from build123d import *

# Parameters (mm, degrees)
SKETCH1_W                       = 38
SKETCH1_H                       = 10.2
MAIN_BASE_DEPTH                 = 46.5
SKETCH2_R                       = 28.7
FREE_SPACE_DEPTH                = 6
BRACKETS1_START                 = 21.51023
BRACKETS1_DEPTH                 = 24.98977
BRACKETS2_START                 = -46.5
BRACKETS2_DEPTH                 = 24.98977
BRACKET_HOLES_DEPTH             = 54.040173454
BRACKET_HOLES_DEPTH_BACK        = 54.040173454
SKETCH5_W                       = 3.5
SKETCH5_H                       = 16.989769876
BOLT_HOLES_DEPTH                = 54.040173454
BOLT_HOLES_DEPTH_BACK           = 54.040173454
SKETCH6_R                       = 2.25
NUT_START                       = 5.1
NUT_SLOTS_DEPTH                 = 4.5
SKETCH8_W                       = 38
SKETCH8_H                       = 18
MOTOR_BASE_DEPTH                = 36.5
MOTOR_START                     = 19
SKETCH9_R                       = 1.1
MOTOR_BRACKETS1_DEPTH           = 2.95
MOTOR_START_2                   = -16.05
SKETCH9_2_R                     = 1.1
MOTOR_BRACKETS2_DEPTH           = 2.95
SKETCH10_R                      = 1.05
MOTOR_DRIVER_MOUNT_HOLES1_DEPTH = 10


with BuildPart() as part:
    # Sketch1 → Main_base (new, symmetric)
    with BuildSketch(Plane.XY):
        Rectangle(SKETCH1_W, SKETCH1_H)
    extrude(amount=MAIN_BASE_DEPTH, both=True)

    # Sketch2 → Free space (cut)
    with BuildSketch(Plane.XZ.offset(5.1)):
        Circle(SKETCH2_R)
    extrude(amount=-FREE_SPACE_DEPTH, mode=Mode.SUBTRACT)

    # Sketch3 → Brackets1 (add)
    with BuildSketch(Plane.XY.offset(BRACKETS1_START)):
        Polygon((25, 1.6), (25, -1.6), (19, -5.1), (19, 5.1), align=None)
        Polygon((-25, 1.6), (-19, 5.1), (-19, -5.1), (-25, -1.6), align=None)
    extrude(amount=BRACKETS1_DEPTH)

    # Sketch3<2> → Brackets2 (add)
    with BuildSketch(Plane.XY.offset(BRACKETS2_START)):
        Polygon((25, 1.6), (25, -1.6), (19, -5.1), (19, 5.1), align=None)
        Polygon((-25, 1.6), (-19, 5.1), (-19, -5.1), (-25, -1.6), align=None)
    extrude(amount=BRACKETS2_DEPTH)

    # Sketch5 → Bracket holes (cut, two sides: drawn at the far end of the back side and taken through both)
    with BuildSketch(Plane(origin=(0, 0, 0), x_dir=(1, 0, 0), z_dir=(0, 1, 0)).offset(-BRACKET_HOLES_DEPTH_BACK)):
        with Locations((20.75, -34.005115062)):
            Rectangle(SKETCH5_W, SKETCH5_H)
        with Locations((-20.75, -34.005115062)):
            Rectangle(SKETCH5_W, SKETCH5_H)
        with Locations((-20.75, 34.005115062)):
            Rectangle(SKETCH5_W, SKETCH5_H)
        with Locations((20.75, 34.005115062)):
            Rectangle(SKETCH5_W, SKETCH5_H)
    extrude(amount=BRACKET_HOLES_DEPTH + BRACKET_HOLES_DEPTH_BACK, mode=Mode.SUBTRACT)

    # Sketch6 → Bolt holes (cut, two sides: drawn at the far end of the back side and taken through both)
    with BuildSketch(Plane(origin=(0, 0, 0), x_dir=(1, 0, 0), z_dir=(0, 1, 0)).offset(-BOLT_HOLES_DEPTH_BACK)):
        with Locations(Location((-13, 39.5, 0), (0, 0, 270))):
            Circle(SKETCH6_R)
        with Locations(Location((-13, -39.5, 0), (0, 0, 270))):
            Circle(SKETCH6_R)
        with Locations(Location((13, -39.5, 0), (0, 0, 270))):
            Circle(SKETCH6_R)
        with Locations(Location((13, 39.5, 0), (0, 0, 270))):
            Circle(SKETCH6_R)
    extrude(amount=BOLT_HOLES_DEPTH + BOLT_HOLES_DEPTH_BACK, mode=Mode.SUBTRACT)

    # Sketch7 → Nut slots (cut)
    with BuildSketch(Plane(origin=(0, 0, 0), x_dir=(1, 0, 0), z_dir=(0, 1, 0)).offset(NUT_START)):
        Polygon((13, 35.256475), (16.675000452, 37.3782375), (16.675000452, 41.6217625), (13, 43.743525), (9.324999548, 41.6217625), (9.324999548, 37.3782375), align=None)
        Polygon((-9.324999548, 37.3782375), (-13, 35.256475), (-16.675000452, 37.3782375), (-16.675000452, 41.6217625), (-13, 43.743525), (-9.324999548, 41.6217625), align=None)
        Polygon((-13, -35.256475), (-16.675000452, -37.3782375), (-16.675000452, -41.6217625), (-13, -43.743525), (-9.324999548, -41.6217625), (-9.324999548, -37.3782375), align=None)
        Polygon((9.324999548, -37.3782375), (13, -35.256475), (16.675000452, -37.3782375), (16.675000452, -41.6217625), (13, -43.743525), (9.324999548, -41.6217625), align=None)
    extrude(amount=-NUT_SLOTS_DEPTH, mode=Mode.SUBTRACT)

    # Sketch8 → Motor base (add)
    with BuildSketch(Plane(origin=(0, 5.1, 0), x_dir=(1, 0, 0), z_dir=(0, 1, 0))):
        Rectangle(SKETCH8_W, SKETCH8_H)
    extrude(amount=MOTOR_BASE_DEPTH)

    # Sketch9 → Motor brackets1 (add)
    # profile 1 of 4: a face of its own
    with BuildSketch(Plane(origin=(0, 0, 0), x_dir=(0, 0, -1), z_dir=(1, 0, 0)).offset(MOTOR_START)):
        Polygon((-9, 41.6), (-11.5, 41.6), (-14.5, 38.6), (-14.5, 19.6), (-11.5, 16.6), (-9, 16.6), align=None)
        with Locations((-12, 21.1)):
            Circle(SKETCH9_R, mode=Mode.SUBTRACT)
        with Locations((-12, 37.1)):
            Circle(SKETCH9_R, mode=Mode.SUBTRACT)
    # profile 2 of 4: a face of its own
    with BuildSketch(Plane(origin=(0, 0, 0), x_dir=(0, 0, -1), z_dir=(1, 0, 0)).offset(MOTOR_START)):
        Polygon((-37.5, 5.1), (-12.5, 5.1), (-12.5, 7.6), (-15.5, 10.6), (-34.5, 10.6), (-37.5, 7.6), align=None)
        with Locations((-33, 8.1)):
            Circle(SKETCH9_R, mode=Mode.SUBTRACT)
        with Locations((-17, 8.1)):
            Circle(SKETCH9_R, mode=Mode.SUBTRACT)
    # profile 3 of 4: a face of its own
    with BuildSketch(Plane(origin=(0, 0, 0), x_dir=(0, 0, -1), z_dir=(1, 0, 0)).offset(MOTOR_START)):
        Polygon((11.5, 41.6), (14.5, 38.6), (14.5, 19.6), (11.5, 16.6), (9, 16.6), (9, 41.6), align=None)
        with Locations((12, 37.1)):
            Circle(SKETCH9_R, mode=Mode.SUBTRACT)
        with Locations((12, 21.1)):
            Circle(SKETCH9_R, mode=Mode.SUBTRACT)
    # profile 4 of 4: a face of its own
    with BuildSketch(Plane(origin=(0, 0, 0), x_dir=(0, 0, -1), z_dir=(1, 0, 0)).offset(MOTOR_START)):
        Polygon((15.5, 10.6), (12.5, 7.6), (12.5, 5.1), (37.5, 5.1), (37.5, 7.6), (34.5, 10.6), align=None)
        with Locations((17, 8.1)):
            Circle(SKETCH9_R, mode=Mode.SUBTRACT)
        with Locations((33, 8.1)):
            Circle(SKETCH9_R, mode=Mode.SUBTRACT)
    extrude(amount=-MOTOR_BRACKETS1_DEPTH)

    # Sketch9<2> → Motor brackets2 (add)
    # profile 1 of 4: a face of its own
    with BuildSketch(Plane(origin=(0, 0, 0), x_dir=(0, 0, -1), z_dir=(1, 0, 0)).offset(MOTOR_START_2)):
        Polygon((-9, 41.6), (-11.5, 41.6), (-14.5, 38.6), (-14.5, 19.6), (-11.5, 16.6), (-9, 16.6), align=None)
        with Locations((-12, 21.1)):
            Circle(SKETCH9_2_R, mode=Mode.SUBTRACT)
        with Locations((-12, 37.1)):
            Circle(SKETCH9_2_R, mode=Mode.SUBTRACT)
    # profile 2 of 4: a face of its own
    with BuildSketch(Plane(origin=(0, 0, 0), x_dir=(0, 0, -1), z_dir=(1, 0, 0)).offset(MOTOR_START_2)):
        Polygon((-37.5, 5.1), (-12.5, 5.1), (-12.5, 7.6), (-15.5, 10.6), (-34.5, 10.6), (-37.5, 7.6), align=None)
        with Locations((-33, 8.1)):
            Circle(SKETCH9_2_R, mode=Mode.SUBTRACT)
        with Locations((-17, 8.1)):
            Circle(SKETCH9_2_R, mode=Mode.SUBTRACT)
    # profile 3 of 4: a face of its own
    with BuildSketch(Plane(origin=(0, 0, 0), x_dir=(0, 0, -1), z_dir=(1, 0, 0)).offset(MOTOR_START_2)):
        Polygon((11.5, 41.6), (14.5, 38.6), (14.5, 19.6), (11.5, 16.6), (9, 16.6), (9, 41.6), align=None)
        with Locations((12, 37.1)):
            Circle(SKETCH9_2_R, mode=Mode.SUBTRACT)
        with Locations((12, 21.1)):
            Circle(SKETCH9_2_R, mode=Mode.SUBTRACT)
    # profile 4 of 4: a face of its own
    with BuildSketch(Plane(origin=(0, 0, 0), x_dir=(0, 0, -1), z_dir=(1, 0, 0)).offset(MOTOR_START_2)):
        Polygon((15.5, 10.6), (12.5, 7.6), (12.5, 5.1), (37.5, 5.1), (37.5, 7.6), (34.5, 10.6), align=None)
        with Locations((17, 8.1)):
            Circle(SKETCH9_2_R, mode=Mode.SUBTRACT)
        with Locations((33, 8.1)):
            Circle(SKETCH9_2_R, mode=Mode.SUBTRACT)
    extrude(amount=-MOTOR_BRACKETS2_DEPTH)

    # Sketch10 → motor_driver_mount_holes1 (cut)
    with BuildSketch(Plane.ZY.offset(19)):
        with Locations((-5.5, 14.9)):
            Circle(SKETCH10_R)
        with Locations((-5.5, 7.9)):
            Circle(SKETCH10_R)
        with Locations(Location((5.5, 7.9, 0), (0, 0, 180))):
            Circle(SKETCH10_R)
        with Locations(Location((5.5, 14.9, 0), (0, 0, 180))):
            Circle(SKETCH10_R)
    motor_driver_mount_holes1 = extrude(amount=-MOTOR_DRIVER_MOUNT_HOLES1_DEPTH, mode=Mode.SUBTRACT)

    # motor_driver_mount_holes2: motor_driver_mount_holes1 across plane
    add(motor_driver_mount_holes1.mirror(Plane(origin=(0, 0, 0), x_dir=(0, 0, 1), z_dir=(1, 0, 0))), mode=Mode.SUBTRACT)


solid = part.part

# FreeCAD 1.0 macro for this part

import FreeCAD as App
import Part
import Sketcher
from FreeCAD import Vector
Q = App.Units.Quantity


def add_polygon(sketch, points):
    """Adds a closed chain of lines whose ends are joined by coincident constraints."""
    first, n = sketch.GeometryCount, len(points)
    for a, b in zip(points, points[1:] + points[:1]):
        sketch.addGeometry(Part.LineSegment(App.Vector(*a, 0), App.Vector(*b, 0)), False)
    for i in range(n):
        sketch.addConstraint(Sketcher.Constraint("Coincident", first + i, 2, first + (i + 1) % n, 1))

doc = App.newDocument("Part")
body = doc.addObject("PartDesign::Body", "Body")

# Sketch on XY plane
sketch1 = body.newObject("Sketcher::SketchObject", "Sketch")
sketch1.AttachmentSupport = (doc.getObject("XY_Plane"), [""])
sketch1.MapMode = "FlatFace"
add_polygon(sketch1, [(-19, 5), (-19, -5), (19, -5), (19, 5)])  # lines 0-3
sketch1.addConstraint([
    Sketcher.Constraint("Vertical", 0),
    Sketcher.Constraint("Horizontal", 1),
    Sketcher.Constraint("Vertical", 2),
    Sketcher.Constraint("Horizontal", 3),
    Sketcher.Constraint("Symmetric", 0, 2, 2, 2, -1, 1),
    Sketcher.Constraint("DistanceX", 1, 1, 1, 2, Q("38 mm")),
    Sketcher.Constraint("DistanceY", 0, 2, 0, 1, Q("10.2 mm")),
])
pad1 = body.newObject("PartDesign::Pad", "Pad")
pad1.Profile = sketch1
pad1.Length = 93
pad1.Midplane = True

# Sketch on XZ plane
sketch2 = body.newObject("Sketcher::SketchObject", "Sketch001")
sketch2.AttachmentSupport = (doc.getObject("XZ_Plane"), [""])
sketch2.MapMode = "FlatFace"
sketch2.AttachmentOffset = App.Placement(Vector(0, 0, 5.1), App.Rotation())
sketch2.addGeometry(Part.Circle(Vector(0, 0, 0), Vector(0, 0, 1), 29), False)
sketch2.addConstraint([
    Sketcher.Constraint("Coincident", 0, 3, -1, 1),
    Sketcher.Constraint("Diameter", 0, Q("57.4 mm")),
])
pocket1 = body.newObject("PartDesign::Pocket", "Pocket")
pocket1.Profile = sketch2
pocket1.Length = 6

# Sketch on XY plane
sketch3 = body.newObject("Sketcher::SketchObject", "Sketch002")
sketch3.AttachmentSupport = (doc.getObject("XY_Plane"), [""])
sketch3.MapMode = "FlatFace"
sketch3.AttachmentOffset = App.Placement(Vector(0, 0, 21.51023), App.Rotation())
add_polygon(sketch3, [(25, -1.6), (25, 1.6), (19, 5.1), (19, -5.1)])  # lines 0-3
add_polygon(sketch3, [(-19, 5.1), (-25, 1.6), (-25, -1.6), (-19, -5.1)])  # lines 4-7
sketch3.addConstraint([
    Sketcher.Constraint("Vertical", 0),
    Sketcher.Constraint("Vertical", 2),
    Sketcher.Constraint("Vertical", 5),
    Sketcher.Constraint("Vertical", 7),
    Sketcher.Constraint("Symmetric", 3, 2, 4, 2, -1, 1),
    Sketcher.Constraint("Symmetric", 1, 2, 6, 2, -1, 1),
    Sketcher.Constraint("Parallel", 3, 4),
    Sketcher.Constraint("Parallel", 1, 6),
    Sketcher.Constraint("Horizontal", 0, 2, 4, 2),
    Sketcher.Constraint("Horizontal", 2, 2, 6, 2),
    Sketcher.Constraint("DistanceY", 0, 1, 0, 2, Q("3.2 mm")),
    Sketcher.Constraint("DistanceY", 2, 2, 2, 1, Q("10.2 mm")),
    Sketcher.Constraint("DistanceX", -1, 1, 0, 2, Q("25 mm")),
    Sketcher.Constraint("DistanceX", -1, 1, 1, 2, Q("19 mm")),
])
pad2 = body.newObject("PartDesign::Pad", "Pad001")
pad2.Profile = sketch3
pad2.Length = 24.98977

# Sketch on XY plane
sketch4 = body.newObject("Sketcher::SketchObject", "Sketch003")
sketch4.AttachmentSupport = (doc.getObject("XY_Plane"), [""])
sketch4.MapMode = "FlatFace"
sketch4.AttachmentOffset = App.Placement(Vector(0, 0, -46.5), App.Rotation())
add_polygon(sketch4, [(25, -1.6), (25, 1.6), (19, 5.1), (19, -5.1)])  # lines 0-3
add_polygon(sketch4, [(-19, 5.1), (-25, 1.6), (-25, -1.6), (-19, -5.1)])  # lines 4-7
sketch4.addConstraint([
    Sketcher.Constraint("Vertical", 0),
    Sketcher.Constraint("Vertical", 2),
    Sketcher.Constraint("Vertical", 5),
    Sketcher.Constraint("Vertical", 7),
    Sketcher.Constraint("Symmetric", 3, 2, 4, 2, -1, 1),
    Sketcher.Constraint("Symmetric", 1, 2, 6, 2, -1, 1),
    Sketcher.Constraint("Parallel", 3, 4),
    Sketcher.Constraint("Parallel", 1, 6),
    Sketcher.Constraint("Horizontal", 0, 2, 4, 2),
    Sketcher.Constraint("Horizontal", 2, 2, 6, 2),
    Sketcher.Constraint("DistanceY", 0, 1, 0, 2, Q("3.2 mm")),
    Sketcher.Constraint("DistanceY", 2, 2, 2, 1, Q("10.2 mm")),
    Sketcher.Constraint("DistanceX", -1, 1, 0, 2, Q("25 mm")),
    Sketcher.Constraint("DistanceX", -1, 1, 1, 2, Q("19 mm")),
])
pad3 = body.newObject("PartDesign::Pad", "Pad002")
pad3.Profile = sketch4
pad3.Length = 24.98977

# Sketch on XZ plane
sketch5 = body.newObject("Sketcher::SketchObject", "Sketch004")
sketch5.AttachmentSupport = (doc.getObject("XZ_Plane"), [""])
sketch5.MapMode = "FlatFace"
add_polygon(sketch5, [(19, 25.5), (19, 42.5), (22.5, 42.5), (22.5, 25.5)])  # lines 0-3
add_polygon(sketch5, [(-22.5, 25.5), (-22.5, 42.5), (-19, 42.5), (-19, 25.5)])  # lines 4-7
add_polygon(sketch5, [(-22.5, -42.5), (-22.5, -25.5), (-19, -25.5), (-19, -42.5)])  # lines 8-11
add_polygon(sketch5, [(19, -42.5), (19, -25.5), (22.5, -25.5), (22.5, -42.5)])  # lines 12-15
sketch5.addConstraint([
    Sketcher.Constraint("Vertical", 0),
    Sketcher.Constraint("Horizontal", 1),
    Sketcher.Constraint("Vertical", 2),
    Sketcher.Constraint("Horizontal", 3),
    Sketcher.Constraint("Vertical", 4),
    Sketcher.Constraint("Horizontal", 5),
    Sketcher.Constraint("Vertical", 6),
    Sketcher.Constraint("Horizontal", 7),
    Sketcher.Constraint("Vertical", 8),
    Sketcher.Constraint("Horizontal", 9),
    Sketcher.Constraint("Vertical", 10),
    Sketcher.Constraint("Horizontal", 11),
    Sketcher.Constraint("Vertical", 12),
    Sketcher.Constraint("Horizontal", 13),
    Sketcher.Constraint("Vertical", 14),
    Sketcher.Constraint("Horizontal", 15),
    Sketcher.Constraint("Symmetric", 2, 2, 8, 2, -1, 1),
    Sketcher.Constraint("Symmetric", 0, 2, 10, 2, -1, 1),
    Sketcher.Constraint("Symmetric", 6, 2, 12, 2, -1, 1),
    Sketcher.Constraint("Symmetric", 4, 2, 14, 2, -1, 1),
    Sketcher.Constraint("Symmetric", 1, 2, 4, 2, -2),
    Sketcher.Constraint("Symmetric", 3, 2, 6, 2, -2),
    Sketcher.Constraint("DistanceX", 1, 1, 1, 2, Q("3.5 mm")),
    Sketcher.Constraint("DistanceX", -1, 1, 0, 2, Q("19 mm")),
    Sketcher.Constraint("DistanceY", -1, 1, 0, 2, Q("42.5 mm")),
    Sketcher.Constraint("DistanceY", 0, 1, 0, 2, Q("16.98977 mm")),
])
pocket2 = body.newObject("PartDesign::Pocket", "Pocket001")
pocket2.Profile = sketch5
pocket2.Type = "ThroughAll"
pocket2.Midplane = True

# Sketch on XZ plane
sketch6 = body.newObject("Sketcher::SketchObject", "Sketch005")
sketch6.AttachmentSupport = (doc.getObject("XZ_Plane"), [""])
sketch6.MapMode = "FlatFace"
sketch6.addGeometry([
    Part.Circle(Vector(-13, -39.5, 0), Vector(0, 0, 1), 2.2),
    Part.Circle(Vector(-13, 39.5, 0), Vector(0, 0, 1), 2.2),
    Part.Circle(Vector(13, 39.5, 0), Vector(0, 0, 1), 2.2),
    Part.Circle(Vector(13, -39.5, 0), Vector(0, 0, 1), 2.2),
], False)
sketch6.addConstraint([
    Sketcher.Constraint("Equal", 0, 1),
    Sketcher.Constraint("Equal", 1, 2),
    Sketcher.Constraint("Equal", 2, 3),
    Sketcher.Constraint("Symmetric", 0, 3, 2, 3, -1, 1),
    Sketcher.Constraint("Symmetric", 1, 3, 3, 3, -1, 1),
    Sketcher.Constraint("Symmetric", 1, 3, 2, 3, -2),
    Sketcher.Constraint("Diameter", 0, Q("4.5 mm")),
    Sketcher.Constraint("DistanceX", 0, 3, -1, 1, Q("13 mm")),
    Sketcher.Constraint("DistanceY", 0, 3, 1, 3, Q("79 mm")),
])
pocket3 = body.newObject("PartDesign::Pocket", "Pocket002")
pocket3.Profile = sketch6
pocket3.Type = "ThroughAll"
pocket3.Midplane = True

# Sketch on XZ plane
sketch7 = body.newObject("Sketcher::SketchObject", "Sketch006")
sketch7.AttachmentSupport = (doc.getObject("XZ_Plane"), [""])
sketch7.MapMode = "FlatFace"
sketch7.AttachmentOffset = App.Placement(Vector(0, 0, -5.1), App.Rotation())
add_polygon(sketch7, [(13, -35.3), (16.7, -37.4), (16.7, -41.6), (13, -43.7), (9.3, -41.6), (9.3, -37.4)])  # lines 0-5
add_polygon(sketch7, [(-13, -35.3), (-9.3, -37.4), (-9.3, -41.6), (-13, -43.7), (-16.7, -41.6), (-16.7, -37.4)])  # lines 6-11
add_polygon(sketch7, [(-13, 35.3), (-16.7, 37.4), (-16.7, 41.6), (-13, 43.7), (-9.3, 41.6), (-9.3, 37.4)])  # lines 12-17
add_polygon(sketch7, [(13, 35.3), (9.3, 37.4), (9.3, 41.6), (13, 43.7), (16.7, 41.6), (16.7, 37.4)])  # lines 18-23
sketch7.addConstraint([
    Sketcher.Constraint("Vertical", 1),
    Sketcher.Constraint("Vertical", 4),
    Sketcher.Constraint("Vertical", 7),
    Sketcher.Constraint("Vertical", 10),
    Sketcher.Constraint("Vertical", 13),
    Sketcher.Constraint("Vertical", 16),
    Sketcher.Constraint("Vertical", 19),
    Sketcher.Constraint("Vertical", 22),
    Sketcher.Constraint("Symmetric", 0, 2, 12, 2, -1, 1),
    Sketcher.Constraint("Symmetric", 2, 2, 14, 2, -1, 1),
    Sketcher.Constraint("Symmetric", 3, 2, 15, 2, -1, 1),
    Sketcher.Constraint("Symmetric", 5, 2, 17, 2, -1, 1),
    Sketcher.Constraint("Symmetric", 6, 2, 18, 2, -1, 1),
    Sketcher.Constraint("Symmetric", 8, 2, 20, 2, -1, 1),
    Sketcher.Constraint("Symmetric", 9, 2, 21, 2, -1, 1),
    Sketcher.Constraint("Symmetric", 11, 2, 23, 2, -1, 1),
    Sketcher.Constraint("Symmetric", 4, 2, 6, 2, -2),
    Sketcher.Constraint("Symmetric", 2, 2, 8, 2, -2),
    Sketcher.Constraint("Symmetric", 1, 2, 9, 2, -2),
    Sketcher.Constraint("Symmetric", 5, 2, 11, 2, -2),
    Sketcher.Constraint("Parallel", 0, 3),
    Sketcher.Constraint("Parallel", 2, 5),
    Sketcher.Constraint("Parallel", 3, 6),
    Sketcher.Constraint("Parallel", 5, 8),
    Sketcher.Constraint("Parallel", 8, 11),
    Sketcher.Constraint("Parallel", 11, 14),
    Sketcher.Constraint("Parallel", 14, 17),
    Sketcher.Constraint("Parallel", 17, 20),
    Sketcher.Constraint("Parallel", 20, 23),
    Sketcher.Constraint("Horizontal", 1, 2, 3, 2),
    Sketcher.Constraint("Horizontal", 0, 2, 4, 2),
    Sketcher.Constraint("Angle", 0, Q("-30 deg")),
    Sketcher.Constraint("DistanceX", -1, 1, 2, 2, Q("13 mm")),
    Sketcher.Constraint("DistanceY", 9, 2, 12, 2, Q("79 mm")),
    Sketcher.Constraint("DistanceX", 3, 2, 1, 2, Q("7.350001 mm")),
    Sketcher.Constraint("DistanceY", 1, 2, 1, 1, Q("4.243525 mm")),
])
pocket4 = body.newObject("PartDesign::Pocket", "Pocket003")
pocket4.Profile = sketch7
pocket4.Length = 4.5
pocket4.Reversed = True

# Sketch on XZ plane
sketch8 = body.newObject("Sketcher::SketchObject", "Sketch007")
sketch8.AttachmentSupport = (doc.getObject("XZ_Plane"), [""])
sketch8.MapMode = "FlatFace"
sketch8.AttachmentOffset = App.Placement(Vector(0, 0, -5.1), App.Rotation())
add_polygon(sketch8, [(-19, -9), (-19, 9), (19, 9), (19, -9)])  # lines 0-3
sketch8.addConstraint([
    Sketcher.Constraint("Vertical", 0),
    Sketcher.Constraint("Horizontal", 1),
    Sketcher.Constraint("Vertical", 2),
    Sketcher.Constraint("Horizontal", 3),
    Sketcher.Constraint("Symmetric", 0, 2, 2, 2, -1, 1),
    Sketcher.Constraint("DistanceX", 1, 1, 1, 2, Q("38 mm")),
    Sketcher.Constraint("DistanceY", 0, 1, 0, 2, Q("18 mm")),
])
pad4 = body.newObject("PartDesign::Pad", "Pad003")
pad4.Profile = sketch8
pad4.Length = 36.5
pad4.Reversed = True

# Sketch on YZ plane
sketch9 = body.newObject("Sketcher::SketchObject", "Sketch008")
sketch9.AttachmentSupport = (doc.getObject("YZ_Plane"), [""])
sketch9.MapMode = "FlatFace"
sketch9.AttachmentOffset = App.Placement(Vector(0, 0, 19), App.Rotation())
add_polygon(sketch9, [(41.6, 9), (41.6, 11.5), (38.6, 14.5), (19.6, 14.5), (16.6, 11.5), (16.6, 9)])  # lines 0-5
sketch9.addGeometry(Part.Circle(Vector(21.1, 12, 0), Vector(0, 0, 1), 1.1), False)  # 6
sketch9.addGeometry(Part.Circle(Vector(37.1, 12, 0), Vector(0, 0, 1), 1.1), False)  # 7
add_polygon(sketch9, [(5.1, 37.5), (5.1, 12.5), (7.6, 12.5), (10.6, 15.5), (10.6, 34.5), (7.6, 37.5)])  # lines 8-13
sketch9.addGeometry(Part.Circle(Vector(8.1, 33, 0), Vector(0, 0, 1), 1.1), False)  # 14
sketch9.addGeometry(Part.Circle(Vector(8.1, 17, 0), Vector(0, 0, 1), 1.1), False)  # 15
add_polygon(sketch9, [(38.6, -14.5), (41.6, -11.5), (41.6, -9), (16.6, -9), (16.6, -11.5), (19.6, -14.5)])  # lines 16-21
sketch9.addGeometry(Part.Circle(Vector(21.1, -12, 0), Vector(0, 0, 1), 1.1), False)  # 22
sketch9.addGeometry(Part.Circle(Vector(37.1, -12, 0), Vector(0, 0, 1), 1.1), False)  # 23
add_polygon(sketch9, [(10.6, -15.5), (7.6, -12.5), (5.1, -12.5), (5.1, -37.5), (7.6, -37.5), (10.6, -34.5)])  # lines 24-29
sketch9.addGeometry(Part.Circle(Vector(8.1, -17, 0), Vector(0, 0, 1), 1.1), False)  # 30
sketch9.addGeometry(Part.Circle(Vector(8.1, -33, 0), Vector(0, 0, 1), 1.1), False)  # 31
sketch9.addConstraint([
    Sketcher.Constraint("Vertical", 0),
    Sketcher.Constraint("Horizontal", 2),
    Sketcher.Constraint("Vertical", 4),
    Sketcher.Constraint("Horizontal", 5),
    Sketcher.Constraint("Vertical", 8),
    Sketcher.Constraint("Horizontal", 9),
    Sketcher.Constraint("Vertical", 11),
    Sketcher.Constraint("Horizontal", 13),
    Sketcher.Constraint("Vertical", 17),
    Sketcher.Constraint("Horizontal", 18),
    Sketcher.Constraint("Vertical", 19),
    Sketcher.Constraint("Horizontal", 21),
    Sketcher.Constraint("Horizontal", 25),
    Sketcher.Constraint("Vertical", 26),
    Sketcher.Constraint("Horizontal", 27),
    Sketcher.Constraint("Vertical", 29),
    Sketcher.Constraint("Equal", 6, 7),
    Sketcher.Constraint("Equal", 7, 14),
    Sketcher.Constraint("Equal", 14, 15),
    Sketcher.Constraint("Equal", 15, 22),
    Sketcher.Constraint("Equal", 22, 23),
    Sketcher.Constraint("Equal", 23, 30),
    Sketcher.Constraint("Equal", 30, 31),
    Sketcher.Constraint("Symmetric", 6, 3, 22, 3, -1),
    Sketcher.Constraint("Symmetric", 7, 3, 23, 3, -1),
    Sketcher.Constraint("Symmetric", 15, 3, 30, 3, -1),
    Sketcher.Constraint("Symmetric", 14, 3, 31, 3, -1),
    Sketcher.Constraint("Symmetric", 0, 2, 16, 2, -1),
    Sketcher.Constraint("Symmetric", 4, 2, 18, 2, -1),
    Sketcher.Constraint("Symmetric", 2, 2, 20, 2, -1),
    Sketcher.Constraint("Symmetric", 9, 2, 24, 2, -1),
    Sketcher.Constraint("Symmetric", 13, 2, 26, 2, -1),
    Sketcher.Constraint("Symmetric", 11, 2, 28, 2, -1),
    Sketcher.Constraint("Perpendicular", 1, 3),
    Sketcher.Constraint("Parallel", 3, 10),
    Sketcher.Constraint("Perpendicular", 10, 12),
    Sketcher.Constraint("Perpendicular", 12, 16),
    Sketcher.Constraint("Perpendicular", 16, 20),
    Sketcher.Constraint("Parallel", 20, 24),
    Sketcher.Constraint("Perpendicular", 24, 28),
    Sketcher.Constraint("Horizontal", 6, 3, 7, 3),
    Sketcher.Constraint("Horizontal", 0, 2, 3, 2),
    Sketcher.Constraint("Horizontal", 16, 2, 19, 2),
    Sketcher.Constraint("Vertical", 14, 3, 15, 3),
    Sketcher.Constraint("Vertical", 9, 2, 12, 2),
    Sketcher.Constraint("Equal", 27, 0),
    Sketcher.Constraint("Equal", 18, 8),
    Sketcher.Constraint("Equal", 21, 11),
    Sketcher.Constraint("Diameter", 6, Q("2.2 mm")),
    Sketcher.Constraint("DistanceX", 2, 2, 2, 1, Q("19 mm")),
    Sketcher.Constraint("DistanceX", 5, 1, 5, 2, Q("25 mm")),
    Sketcher.Constraint("DistanceX", 9, 1, 9, 2, Q("2.5 mm")),
    Sketcher.Constraint("DistanceY", -1, 1, 6, 3, Q("12 mm")),
    Sketcher.Constraint("DistanceY", -1, 1, 14, 3, Q("33 mm")),
    Sketcher.Constraint("DistanceY", -1, 1, 15, 3, Q("17 mm")),
    Sketcher.Constraint("DistanceY", -1, 1, 4, 2, Q("9 mm")),
    Sketcher.Constraint("DistanceX", 6, 3, 7, 3, Q("16 mm")),
    Sketcher.Constraint("DistanceX", 14, 3, 6, 3, Q("13 mm")),
    Sketcher.Constraint("DistanceX", 8, 2, 15, 3, Q("3 mm")),
    Sketcher.Constraint("DistanceY", 3, 2, 8, 2, Q("1 mm")),
    Sketcher.Constraint("DistanceX", 9, 2, 3, 2, Q("9 mm")),
    Sketcher.Constraint("DistanceX", -1, 1, 6, 3, Q("21.1 mm")),
])
pad5 = body.newObject("PartDesign::Pad", "Pad004")
pad5.Profile = sketch9
pad5.Length = 2.95
pad5.Reversed = True

# Sketch on YZ plane
sketch10 = body.newObject("Sketcher::SketchObject", "Sketch009")
sketch10.AttachmentSupport = (doc.getObject("YZ_Plane"), [""])
sketch10.MapMode = "FlatFace"
sketch10.AttachmentOffset = App.Placement(Vector(0, 0, -16.05), App.Rotation())
add_polygon(sketch10, [(41.6, 9), (41.6, 11.5), (38.6, 14.5), (19.6, 14.5), (16.6, 11.5), (16.6, 9)])  # lines 0-5
sketch10.addGeometry(Part.Circle(Vector(21.1, 12, 0), Vector(0, 0, 1), 1.1), False)  # 6
sketch10.addGeometry(Part.Circle(Vector(37.1, 12, 0), Vector(0, 0, 1), 1.1), False)  # 7
add_polygon(sketch10, [(5.1, 37.5), (5.1, 12.5), (7.6, 12.5), (10.6, 15.5), (10.6, 34.5), (7.6, 37.5)])  # lines 8-13
sketch10.addGeometry(Part.Circle(Vector(8.1, 33, 0), Vector(0, 0, 1), 1.1), False)  # 14
sketch10.addGeometry(Part.Circle(Vector(8.1, 17, 0), Vector(0, 0, 1), 1.1), False)  # 15
add_polygon(sketch10, [(38.6, -14.5), (41.6, -11.5), (41.6, -9), (16.6, -9), (16.6, -11.5), (19.6, -14.5)])  # lines 16-21
sketch10.addGeometry(Part.Circle(Vector(21.1, -12, 0), Vector(0, 0, 1), 1.1), False)  # 22
sketch10.addGeometry(Part.Circle(Vector(37.1, -12, 0), Vector(0, 0, 1), 1.1), False)  # 23
add_polygon(sketch10, [(10.6, -15.5), (7.6, -12.5), (5.1, -12.5), (5.1, -37.5), (7.6, -37.5), (10.6, -34.5)])  # lines 24-29
sketch10.addGeometry(Part.Circle(Vector(8.1, -17, 0), Vector(0, 0, 1), 1.1), False)  # 30
sketch10.addGeometry(Part.Circle(Vector(8.1, -33, 0), Vector(0, 0, 1), 1.1), False)  # 31
sketch10.addConstraint([
    Sketcher.Constraint("Vertical", 0),
    Sketcher.Constraint("Horizontal", 2),
    Sketcher.Constraint("Vertical", 4),
    Sketcher.Constraint("Horizontal", 5),
    Sketcher.Constraint("Vertical", 8),
    Sketcher.Constraint("Horizontal", 9),
    Sketcher.Constraint("Vertical", 11),
    Sketcher.Constraint("Horizontal", 13),
    Sketcher.Constraint("Vertical", 17),
    Sketcher.Constraint("Horizontal", 18),
    Sketcher.Constraint("Vertical", 19),
    Sketcher.Constraint("Horizontal", 21),
    Sketcher.Constraint("Horizontal", 25),
    Sketcher.Constraint("Vertical", 26),
    Sketcher.Constraint("Horizontal", 27),
    Sketcher.Constraint("Vertical", 29),
    Sketcher.Constraint("Equal", 6, 7),
    Sketcher.Constraint("Equal", 7, 14),
    Sketcher.Constraint("Equal", 14, 15),
    Sketcher.Constraint("Equal", 15, 22),
    Sketcher.Constraint("Equal", 22, 23),
    Sketcher.Constraint("Equal", 23, 30),
    Sketcher.Constraint("Equal", 30, 31),
    Sketcher.Constraint("Symmetric", 6, 3, 22, 3, -1),
    Sketcher.Constraint("Symmetric", 7, 3, 23, 3, -1),
    Sketcher.Constraint("Symmetric", 15, 3, 30, 3, -1),
    Sketcher.Constraint("Symmetric", 14, 3, 31, 3, -1),
    Sketcher.Constraint("Symmetric", 0, 2, 16, 2, -1),
    Sketcher.Constraint("Symmetric", 4, 2, 18, 2, -1),
    Sketcher.Constraint("Symmetric", 2, 2, 20, 2, -1),
    Sketcher.Constraint("Symmetric", 9, 2, 24, 2, -1),
    Sketcher.Constraint("Symmetric", 13, 2, 26, 2, -1),
    Sketcher.Constraint("Symmetric", 11, 2, 28, 2, -1),
    Sketcher.Constraint("Perpendicular", 1, 3),
    Sketcher.Constraint("Parallel", 3, 10),
    Sketcher.Constraint("Perpendicular", 10, 12),
    Sketcher.Constraint("Perpendicular", 12, 16),
    Sketcher.Constraint("Perpendicular", 16, 20),
    Sketcher.Constraint("Parallel", 20, 24),
    Sketcher.Constraint("Perpendicular", 24, 28),
    Sketcher.Constraint("Horizontal", 6, 3, 7, 3),
    Sketcher.Constraint("Horizontal", 0, 2, 3, 2),
    Sketcher.Constraint("Horizontal", 16, 2, 19, 2),
    Sketcher.Constraint("Vertical", 14, 3, 15, 3),
    Sketcher.Constraint("Vertical", 9, 2, 12, 2),
    Sketcher.Constraint("Equal", 27, 0),
    Sketcher.Constraint("Equal", 18, 8),
    Sketcher.Constraint("Equal", 21, 11),
    Sketcher.Constraint("Diameter", 6, Q("2.2 mm")),
    Sketcher.Constraint("DistanceX", 2, 2, 2, 1, Q("19 mm")),
    Sketcher.Constraint("DistanceX", 5, 1, 5, 2, Q("25 mm")),
    Sketcher.Constraint("DistanceX", 9, 1, 9, 2, Q("2.5 mm")),
    Sketcher.Constraint("DistanceY", -1, 1, 6, 3, Q("12 mm")),
    Sketcher.Constraint("DistanceY", -1, 1, 14, 3, Q("33 mm")),
    Sketcher.Constraint("DistanceY", -1, 1, 15, 3, Q("17 mm")),
    Sketcher.Constraint("DistanceY", -1, 1, 4, 2, Q("9 mm")),
    Sketcher.Constraint("DistanceX", 6, 3, 7, 3, Q("16 mm")),
    Sketcher.Constraint("DistanceX", 14, 3, 6, 3, Q("13 mm")),
    Sketcher.Constraint("DistanceX", 8, 2, 15, 3, Q("3 mm")),
    Sketcher.Constraint("DistanceY", 3, 2, 8, 2, Q("1 mm")),
    Sketcher.Constraint("DistanceX", 9, 2, 3, 2, Q("9 mm")),
    Sketcher.Constraint("DistanceX", -1, 1, 6, 3, Q("21.1 mm")),
])
pad6 = body.newObject("PartDesign::Pad", "Pad005")
pad6.Profile = sketch10
pad6.Length = 2.95
pad6.Reversed = True

# Sketch on YZ plane
sketch11 = body.newObject("Sketcher::SketchObject", "Sketch010")
sketch11.AttachmentSupport = (doc.getObject("YZ_Plane"), [""])
sketch11.MapMode = "FlatFace"
sketch11.AttachmentOffset = App.Placement(Vector(0, 0, -19), App.Rotation())
sketch11.addGeometry([
    Part.Circle(Vector(14.9, -5.5, 0), Vector(0, 0, 1), 1.1),
    Part.Circle(Vector(7.9, -5.5, 0), Vector(0, 0, 1), 1.1),
    Part.Circle(Vector(7.9, 5.5, 0), Vector(0, 0, 1), 1.1),
    Part.Circle(Vector(14.9, 5.5, 0), Vector(0, 0, 1), 1.1),
], False)
sketch11.addConstraint([
    Sketcher.Constraint("Equal", 0, 1),
    Sketcher.Constraint("Equal", 1, 2),
    Sketcher.Constraint("Equal", 2, 3),
    Sketcher.Constraint("Symmetric", 1, 3, 2, 3, -1),
    Sketcher.Constraint("Symmetric", 0, 3, 3, 3, -1),
    Sketcher.Constraint("Horizontal", 0, 3, 1, 3),
    Sketcher.Constraint("Diameter", 0, Q("2.1 mm")),
    Sketcher.Constraint("DistanceX", 1, 3, 0, 3, Q("7 mm")),
    Sketcher.Constraint("DistanceY", 1, 3, 2, 3, Q("11 mm")),
    Sketcher.Constraint("DistanceX", -1, 1, 0, 3, Q("14.9 mm")),
])
pocket5 = body.newObject("PartDesign::Pocket", "Pocket004")
pocket5.Profile = sketch11
pocket5.Length = 10
pocket5.Reversed = True
doc.recompute()

mirrored = body.newObject("PartDesign::Mirrored", "Mirrored")
mirrored.Originals = [pocket5]
mirrored.MirrorPlane = (doc.getObject("YZ_Plane"), [""])
body.Tip = mirrored

doc.recompute()
